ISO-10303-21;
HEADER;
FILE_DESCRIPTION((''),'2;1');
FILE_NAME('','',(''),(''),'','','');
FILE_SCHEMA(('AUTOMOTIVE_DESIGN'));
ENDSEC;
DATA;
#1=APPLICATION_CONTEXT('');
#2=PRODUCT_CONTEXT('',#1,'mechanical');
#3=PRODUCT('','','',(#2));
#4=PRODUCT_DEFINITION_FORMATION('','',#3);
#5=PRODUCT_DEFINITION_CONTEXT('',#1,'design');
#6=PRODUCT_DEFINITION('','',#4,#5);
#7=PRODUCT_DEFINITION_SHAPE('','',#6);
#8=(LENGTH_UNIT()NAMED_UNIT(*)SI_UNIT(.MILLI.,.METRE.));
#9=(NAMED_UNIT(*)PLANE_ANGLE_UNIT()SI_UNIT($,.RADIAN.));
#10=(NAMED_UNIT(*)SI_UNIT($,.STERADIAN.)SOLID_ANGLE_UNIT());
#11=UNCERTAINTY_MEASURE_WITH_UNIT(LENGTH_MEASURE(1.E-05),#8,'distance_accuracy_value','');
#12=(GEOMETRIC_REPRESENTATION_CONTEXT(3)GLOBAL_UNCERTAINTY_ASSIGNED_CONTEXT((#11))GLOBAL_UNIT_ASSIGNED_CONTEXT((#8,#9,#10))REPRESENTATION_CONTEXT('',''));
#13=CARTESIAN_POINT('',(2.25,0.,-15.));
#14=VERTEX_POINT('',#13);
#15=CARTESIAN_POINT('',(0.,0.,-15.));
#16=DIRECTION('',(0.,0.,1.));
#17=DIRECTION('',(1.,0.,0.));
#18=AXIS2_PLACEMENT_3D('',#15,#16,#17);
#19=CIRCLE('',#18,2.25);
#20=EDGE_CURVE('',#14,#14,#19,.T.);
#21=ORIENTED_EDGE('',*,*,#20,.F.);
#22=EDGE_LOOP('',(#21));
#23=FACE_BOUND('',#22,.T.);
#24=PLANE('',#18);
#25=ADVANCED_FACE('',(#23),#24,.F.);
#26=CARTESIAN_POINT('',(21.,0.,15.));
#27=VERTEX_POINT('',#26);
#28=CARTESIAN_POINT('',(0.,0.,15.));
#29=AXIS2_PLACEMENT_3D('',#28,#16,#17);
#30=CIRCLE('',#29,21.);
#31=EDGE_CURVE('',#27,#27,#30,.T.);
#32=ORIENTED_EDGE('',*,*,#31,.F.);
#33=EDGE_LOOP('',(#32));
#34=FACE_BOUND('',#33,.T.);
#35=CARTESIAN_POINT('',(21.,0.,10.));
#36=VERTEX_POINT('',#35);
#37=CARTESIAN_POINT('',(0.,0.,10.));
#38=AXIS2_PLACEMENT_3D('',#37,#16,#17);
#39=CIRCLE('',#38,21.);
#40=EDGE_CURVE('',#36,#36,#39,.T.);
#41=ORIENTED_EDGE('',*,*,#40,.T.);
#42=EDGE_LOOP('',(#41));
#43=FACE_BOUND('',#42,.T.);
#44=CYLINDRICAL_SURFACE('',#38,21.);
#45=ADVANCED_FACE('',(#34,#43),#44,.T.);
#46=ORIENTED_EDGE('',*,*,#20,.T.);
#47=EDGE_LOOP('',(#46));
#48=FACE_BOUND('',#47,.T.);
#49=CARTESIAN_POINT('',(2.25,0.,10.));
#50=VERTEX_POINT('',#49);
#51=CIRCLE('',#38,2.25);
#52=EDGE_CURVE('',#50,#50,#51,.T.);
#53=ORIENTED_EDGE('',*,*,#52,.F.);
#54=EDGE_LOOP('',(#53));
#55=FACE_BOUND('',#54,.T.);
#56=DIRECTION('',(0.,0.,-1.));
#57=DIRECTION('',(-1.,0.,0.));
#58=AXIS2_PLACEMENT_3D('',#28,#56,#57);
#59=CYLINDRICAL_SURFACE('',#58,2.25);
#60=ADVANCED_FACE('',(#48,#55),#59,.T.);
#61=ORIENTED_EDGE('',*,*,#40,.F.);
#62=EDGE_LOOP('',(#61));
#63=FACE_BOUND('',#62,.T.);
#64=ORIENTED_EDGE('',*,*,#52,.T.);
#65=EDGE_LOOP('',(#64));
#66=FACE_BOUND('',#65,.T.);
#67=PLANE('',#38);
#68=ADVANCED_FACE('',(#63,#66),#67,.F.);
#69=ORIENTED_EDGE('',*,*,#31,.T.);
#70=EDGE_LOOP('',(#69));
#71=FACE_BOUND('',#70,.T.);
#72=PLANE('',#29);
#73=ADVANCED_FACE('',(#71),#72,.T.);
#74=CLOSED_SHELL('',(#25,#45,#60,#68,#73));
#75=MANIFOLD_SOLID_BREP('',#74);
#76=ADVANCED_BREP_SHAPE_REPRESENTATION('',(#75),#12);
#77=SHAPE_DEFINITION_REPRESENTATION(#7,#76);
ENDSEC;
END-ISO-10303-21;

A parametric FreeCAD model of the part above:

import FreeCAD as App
import Part
import Sketcher
from FreeCAD import Vector

doc = App.newDocument("Part")
params = doc.addObject("Spreadsheet::Sheet", "Params")
for row, (alias, value) in enumerate([
    ("sketch1_diameter", "4.5 mm"),
    ("pad1_length", "30 mm"),
    ("sketch2_diameter", "42 mm"),
    ("pad2_length", "5 mm"),
], start=1):
    params.set(f"A{row}", alias)
    params.set(f"B{row}", "=" + value)
    params.setAlias(f"B{row}", alias)

body = doc.addObject("PartDesign::Body", "Body")

sketch1 = body.newObject("Sketcher::SketchObject", "Sketch")
sketch1.AttachmentSupport = (doc.getObject("XY_Plane"), [""])
sketch1.MapMode = "FlatFace"
sketch1.addGeometry(Part.Circle(Vector(0, 0, 0), Vector(0, 0, 1), 2.2), False)
sketch1.addConstraint([
    Sketcher.Constraint("Coincident", 0, 3, -1, 1),
    Sketcher.Constraint("Diameter", 0, 4.5),
])
sketch1.setExpression("Constraints[1]", "Params.sketch1_diameter")
pad1 = body.newObject("PartDesign::Pad", "Pad")
pad1.Profile = sketch1
pad1.setExpression("Length", "Params.pad1_length")
pad1.Midplane = True

sketch2 = body.newObject("Sketcher::SketchObject", "Sketch001")
sketch2.AttachmentSupport = (doc.getObject("XY_Plane"), [""])
sketch2.MapMode = "FlatFace"
sketch2.AttachmentOffset = App.Placement(Vector(0, 0, 15), App.Rotation())
sketch2.addGeometry(Part.Circle(Vector(0, 0, 0), Vector(0, 0, 1), 21), False)
sketch2.addConstraint([
    Sketcher.Constraint("Coincident", 0, 3, -1, 1),
    Sketcher.Constraint("Diameter", 0, 42.0),
])
sketch2.setExpression("Constraints[1]", "Params.sketch2_diameter")
pad2 = body.newObject("PartDesign::Pad", "Pad001")
pad2.Profile = sketch2
pad2.setExpression("Length", "Params.pad2_length")
pad2.Reversed = True

doc.recompute()
